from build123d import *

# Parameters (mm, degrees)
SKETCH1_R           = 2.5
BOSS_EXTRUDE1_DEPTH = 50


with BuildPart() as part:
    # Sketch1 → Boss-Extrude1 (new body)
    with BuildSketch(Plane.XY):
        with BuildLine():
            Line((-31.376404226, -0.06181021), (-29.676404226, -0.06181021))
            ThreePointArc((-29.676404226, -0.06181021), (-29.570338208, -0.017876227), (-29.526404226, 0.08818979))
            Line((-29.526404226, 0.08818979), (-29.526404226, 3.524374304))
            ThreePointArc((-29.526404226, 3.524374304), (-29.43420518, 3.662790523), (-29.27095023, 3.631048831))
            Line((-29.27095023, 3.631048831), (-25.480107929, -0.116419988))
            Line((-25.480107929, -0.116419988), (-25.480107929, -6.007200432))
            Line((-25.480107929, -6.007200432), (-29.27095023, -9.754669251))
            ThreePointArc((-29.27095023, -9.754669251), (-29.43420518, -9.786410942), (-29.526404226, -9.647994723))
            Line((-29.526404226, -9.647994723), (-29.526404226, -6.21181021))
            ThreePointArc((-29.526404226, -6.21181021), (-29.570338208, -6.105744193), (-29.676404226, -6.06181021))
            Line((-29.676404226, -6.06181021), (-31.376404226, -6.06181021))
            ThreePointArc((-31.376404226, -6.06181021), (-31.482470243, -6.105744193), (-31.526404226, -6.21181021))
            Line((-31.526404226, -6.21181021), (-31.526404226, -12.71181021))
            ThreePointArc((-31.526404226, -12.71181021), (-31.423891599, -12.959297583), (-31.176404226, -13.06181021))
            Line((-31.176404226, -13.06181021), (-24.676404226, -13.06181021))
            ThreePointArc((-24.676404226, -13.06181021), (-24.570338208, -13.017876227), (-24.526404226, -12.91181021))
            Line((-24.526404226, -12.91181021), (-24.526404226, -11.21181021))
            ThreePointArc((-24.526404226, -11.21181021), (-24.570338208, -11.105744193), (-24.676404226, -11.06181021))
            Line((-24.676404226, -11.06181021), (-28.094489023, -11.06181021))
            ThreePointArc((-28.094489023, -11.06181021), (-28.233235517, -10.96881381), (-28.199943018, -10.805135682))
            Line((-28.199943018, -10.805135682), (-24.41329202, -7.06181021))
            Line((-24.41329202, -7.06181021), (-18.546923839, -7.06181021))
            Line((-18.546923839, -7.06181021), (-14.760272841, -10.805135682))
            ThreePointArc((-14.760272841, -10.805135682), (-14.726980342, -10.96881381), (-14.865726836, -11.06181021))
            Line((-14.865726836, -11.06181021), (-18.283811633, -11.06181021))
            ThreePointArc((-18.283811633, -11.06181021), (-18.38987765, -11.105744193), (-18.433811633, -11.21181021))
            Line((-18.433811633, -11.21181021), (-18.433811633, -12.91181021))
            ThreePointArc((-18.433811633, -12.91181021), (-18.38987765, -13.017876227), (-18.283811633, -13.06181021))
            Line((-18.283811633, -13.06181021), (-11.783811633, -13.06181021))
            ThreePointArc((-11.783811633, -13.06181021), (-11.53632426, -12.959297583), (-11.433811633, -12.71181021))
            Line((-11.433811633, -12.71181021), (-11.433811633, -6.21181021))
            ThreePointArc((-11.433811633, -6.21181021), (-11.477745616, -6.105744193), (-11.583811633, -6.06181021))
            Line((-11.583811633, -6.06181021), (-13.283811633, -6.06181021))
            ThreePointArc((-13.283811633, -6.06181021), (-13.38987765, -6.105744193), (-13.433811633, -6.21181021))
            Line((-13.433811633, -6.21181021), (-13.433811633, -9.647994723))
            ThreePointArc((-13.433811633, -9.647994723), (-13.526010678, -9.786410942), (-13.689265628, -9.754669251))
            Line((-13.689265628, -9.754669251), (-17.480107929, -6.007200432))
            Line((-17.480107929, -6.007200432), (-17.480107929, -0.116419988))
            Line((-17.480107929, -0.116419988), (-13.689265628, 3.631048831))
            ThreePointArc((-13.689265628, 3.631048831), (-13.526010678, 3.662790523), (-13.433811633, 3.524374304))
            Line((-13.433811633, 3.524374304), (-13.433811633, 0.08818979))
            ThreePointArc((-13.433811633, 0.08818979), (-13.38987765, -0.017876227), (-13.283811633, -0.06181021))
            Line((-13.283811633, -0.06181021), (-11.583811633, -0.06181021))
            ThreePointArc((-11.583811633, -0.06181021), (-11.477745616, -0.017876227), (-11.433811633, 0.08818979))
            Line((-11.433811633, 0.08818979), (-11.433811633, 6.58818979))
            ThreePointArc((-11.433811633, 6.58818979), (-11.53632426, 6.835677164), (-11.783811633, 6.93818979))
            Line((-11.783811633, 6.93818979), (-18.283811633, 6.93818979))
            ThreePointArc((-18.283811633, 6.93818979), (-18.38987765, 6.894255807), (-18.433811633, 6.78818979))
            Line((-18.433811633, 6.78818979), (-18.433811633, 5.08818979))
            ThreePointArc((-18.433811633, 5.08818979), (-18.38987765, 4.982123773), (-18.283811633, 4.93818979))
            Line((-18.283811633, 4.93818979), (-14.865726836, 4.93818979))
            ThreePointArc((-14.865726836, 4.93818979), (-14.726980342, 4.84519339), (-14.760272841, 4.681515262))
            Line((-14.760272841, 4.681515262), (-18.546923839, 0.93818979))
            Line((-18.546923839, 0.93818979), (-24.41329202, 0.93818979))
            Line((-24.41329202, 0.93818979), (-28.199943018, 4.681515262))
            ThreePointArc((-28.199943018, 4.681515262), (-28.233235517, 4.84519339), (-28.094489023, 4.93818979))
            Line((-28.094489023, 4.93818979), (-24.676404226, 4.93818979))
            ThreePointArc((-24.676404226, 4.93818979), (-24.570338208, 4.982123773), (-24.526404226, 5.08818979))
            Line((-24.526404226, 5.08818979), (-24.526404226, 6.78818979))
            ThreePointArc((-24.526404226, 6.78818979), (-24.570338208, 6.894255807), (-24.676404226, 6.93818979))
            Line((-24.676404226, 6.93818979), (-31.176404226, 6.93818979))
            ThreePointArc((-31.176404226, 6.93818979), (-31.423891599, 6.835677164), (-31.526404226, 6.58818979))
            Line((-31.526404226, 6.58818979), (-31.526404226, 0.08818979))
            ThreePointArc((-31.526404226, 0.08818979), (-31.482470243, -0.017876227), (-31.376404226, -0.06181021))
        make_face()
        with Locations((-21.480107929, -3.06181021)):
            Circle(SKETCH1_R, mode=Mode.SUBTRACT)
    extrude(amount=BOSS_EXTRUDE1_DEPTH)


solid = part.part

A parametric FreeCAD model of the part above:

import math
import FreeCAD as App
import Part
import Sketcher

V = App.Vector

doc = App.newDocument("Part")
body = doc.addObject("PartDesign::Body", "Body")

sketch1 = body.newObject("Sketcher::SketchObject", "Sketch")
sketch1.AttachmentSupport = (doc.getObject("XY_Plane"), [""])
sketch1.MapMode = "FlatFace"
sketch1.addGeometry(Part.LineSegment(V(-31.38, -0.06, 0), V(-29.68, -0.06, 0)), False)
sketch1.addGeometry(Part.ArcOfCircle(Part.Circle(V(-29.68, 0.09, 0), V(0, 0, 1), 0.15), math.radians(-90), math.radians(0)), False)
sketch1.addGeometry(Part.LineSegment(V(-29.53, 0.09, 0), V(-29.53, 3.52, 0)), False)
sketch1.addGeometry(Part.ArcOfCircle(Part.Circle(V(-29.38, 3.52, 0), V(0, 0, 1), 0.15), math.radians(45), math.radians(180)), False)
sketch1.addGeometry(Part.LineSegment(V(-29.27, 3.63, 0), V(-25.48, -0.12, 0)), False)
sketch1.addGeometry(Part.LineSegment(V(-25.48, -0.12, 0), V(-25.48, -6.01, 0)), False)
sketch1.addGeometry(Part.LineSegment(V(-25.48, -6.01, 0), V(-29.27, -9.75, 0)), False)
sketch1.addGeometry(Part.ArcOfCircle(Part.Circle(V(-29.38, -9.65, 0), V(0, 0, 1), 0.15), math.radians(-180), math.radians(-45)), False)
sketch1.addGeometry(Part.LineSegment(V(-29.53, -9.65, 0), V(-29.53, -6.21, 0)), False)
sketch1.addGeometry(Part.ArcOfCircle(Part.Circle(V(-29.68, -6.21, 0), V(0, 0, 1), 0.15), math.radians(0), math.radians(90)), False)
sketch1.addGeometry(Part.LineSegment(V(-29.68, -6.06, 0), V(-31.38, -6.06, 0)), False)
sketch1.addGeometry(Part.ArcOfCircle(Part.Circle(V(-31.38, -6.21, 0), V(0, 0, 1), 0.15), math.radians(90), math.radians(180)), False)
sketch1.addGeometry(Part.LineSegment(V(-31.53, -6.21, 0), V(-31.53, -12.71, 0)), False)
sketch1.addGeometry(Part.ArcOfCircle(Part.Circle(V(-31.18, -12.71, 0), V(0, 0, 1), 0.35), math.radians(-180), math.radians(-90)), False)
sketch1.addGeometry(Part.LineSegment(V(-31.18, -13.06, 0), V(-24.68, -13.06, 0)), False)
sketch1.addGeometry(Part.ArcOfCircle(Part.Circle(V(-24.68, -12.91, 0), V(0, 0, 1), 0.15), math.radians(-90), math.radians(0)), False)
sketch1.addGeometry(Part.LineSegment(V(-24.53, -12.91, 0), V(-24.53, -11.21, 0)), False)
sketch1.addGeometry(Part.ArcOfCircle(Part.Circle(V(-24.68, -11.21, 0), V(0, 0, 1), 0.15), math.radians(0), math.radians(90)), False)
sketch1.addGeometry(Part.LineSegment(V(-24.68, -11.06, 0), V(-28.09, -11.06, 0)), False)
sketch1.addGeometry(Part.ArcOfCircle(Part.Circle(V(-28.09, -10.91, 0), V(0, 0, 1), 0.15), math.radians(135), math.radians(270)), False)
sketch1.addGeometry(Part.LineSegment(V(-28.2, -10.81, 0), V(-24.41, -7.06, 0)), False)
sketch1.addGeometry(Part.LineSegment(V(-24.41, -7.06, 0), V(-18.55, -7.06, 0)), False)
sketch1.addGeometry(Part.LineSegment(V(-18.55, -7.06, 0), V(-14.76, -10.81, 0)), False)
sketch1.addGeometry(Part.ArcOfCircle(Part.Circle(V(-14.87, -10.91, 0), V(0, 0, 1), 0.15), math.radians(-90), math.radians(45)), False)
sketch1.addGeometry(Part.LineSegment(V(-14.87, -11.06, 0), V(-18.28, -11.06, 0)), False)
sketch1.addGeometry(Part.ArcOfCircle(Part.Circle(V(-18.28, -11.21, 0), V(0, 0, 1), 0.15), math.radians(90), math.radians(180)), False)
sketch1.addGeometry(Part.LineSegment(V(-18.43, -11.21, 0), V(-18.43, -12.91, 0)), False)
sketch1.addGeometry(Part.ArcOfCircle(Part.Circle(V(-18.28, -12.91, 0), V(0, 0, 1), 0.15), math.radians(-180), math.radians(-90)), False)
sketch1.addGeometry(Part.LineSegment(V(-18.28, -13.06, 0), V(-11.78, -13.06, 0)), False)
sketch1.addGeometry(Part.ArcOfCircle(Part.Circle(V(-11.78, -12.71, 0), V(0, 0, 1), 0.35), math.radians(-90), math.radians(0)), False)
sketch1.addGeometry(Part.LineSegment(V(-11.43, -12.71, 0), V(-11.43, -6.21, 0)), False)
sketch1.addGeometry(Part.ArcOfCircle(Part.Circle(V(-11.58, -6.21, 0), V(0, 0, 1), 0.15), math.radians(0), math.radians(90)), False)
sketch1.addGeometry(Part.LineSegment(V(-11.58, -6.06, 0), V(-13.28, -6.06, 0)), False)
sketch1.addGeometry(Part.ArcOfCircle(Part.Circle(V(-13.28, -6.21, 0), V(0, 0, 1), 0.15), math.radians(90), math.radians(180)), False)
sketch1.addGeometry(Part.LineSegment(V(-13.43, -6.21, 0), V(-13.43, -9.65, 0)), False)
sketch1.addGeometry(Part.ArcOfCircle(Part.Circle(V(-13.58, -9.65, 0), V(0, 0, 1), 0.15), math.radians(-135), math.radians(0)), False)
sketch1.addGeometry(Part.LineSegment(V(-13.69, -9.75, 0), V(-17.48, -6.01, 0)), False)
sketch1.addGeometry(Part.LineSegment(V(-17.48, -6.01, 0), V(-17.48, -0.12, 0)), False)
sketch1.addGeometry(Part.LineSegment(V(-17.48, -0.12, 0), V(-13.69, 3.63, 0)), False)
sketch1.addGeometry(Part.ArcOfCircle(Part.Circle(V(-13.58, 3.52, 0), V(0, 0, 1), 0.15), math.radians(0), math.radians(135)), False)
sketch1.addGeometry(Part.LineSegment(V(-13.43, 3.52, 0), V(-13.43, 0.09, 0)), False)
sketch1.addGeometry(Part.ArcOfCircle(Part.Circle(V(-13.28, 0.09, 0), V(0, 0, 1), 0.15), math.radians(-180), math.radians(-90)), False)
sketch1.addGeometry(Part.LineSegment(V(-13.28, -0.06, 0), V(-11.58, -0.06, 0)), False)
sketch1.addGeometry(Part.ArcOfCircle(Part.Circle(V(-11.58, 0.09, 0), V(0, 0, 1), 0.15), math.radians(-90), math.radians(0)), False)
sketch1.addGeometry(Part.LineSegment(V(-11.43, 0.09, 0), V(-11.43, 6.59, 0)), False)
sketch1.addGeometry(Part.ArcOfCircle(Part.Circle(V(-11.78, 6.59, 0), V(0, 0, 1), 0.35), math.radians(0), math.radians(90)), False)
sketch1.addGeometry(Part.LineSegment(V(-11.78, 6.94, 0), V(-18.28, 6.94, 0)), False)
sketch1.addGeometry(Part.ArcOfCircle(Part.Circle(V(-18.28, 6.79, 0), V(0, 0, 1), 0.15), math.radians(90), math.radians(180)), False)
sketch1.addGeometry(Part.LineSegment(V(-18.43, 6.79, 0), V(-18.43, 5.09, 0)), False)
sketch1.addGeometry(Part.ArcOfCircle(Part.Circle(V(-18.28, 5.09, 0), V(0, 0, 1), 0.15), math.radians(-180), math.radians(-90)), False)
sketch1.addGeometry(Part.LineSegment(V(-18.28, 4.94, 0), V(-14.87, 4.94, 0)), False)
sketch1.addGeometry(Part.ArcOfCircle(Part.Circle(V(-14.87, 4.79, 0), V(0, 0, 1), 0.15), math.radians(-45), math.radians(90)), False)
sketch1.addGeometry(Part.LineSegment(V(-14.76, 4.68, 0), V(-18.55, 0.94, 0)), False)
sketch1.addGeometry(Part.LineSegment(V(-18.55, 0.94, 0), V(-24.41, 0.94, 0)), False)
sketch1.addGeometry(Part.LineSegment(V(-24.41, 0.94, 0), V(-28.2, 4.68, 0)), False)
sketch1.addGeometry(Part.ArcOfCircle(Part.Circle(V(-28.09, 4.79, 0), V(0, 0, 1), 0.15), math.radians(90), math.radians(225)), False)
sketch1.addGeometry(Part.LineSegment(V(-28.09, 4.94, 0), V(-24.68, 4.94, 0)), False)
sketch1.addGeometry(Part.ArcOfCircle(Part.Circle(V(-24.68, 5.09, 0), V(0, 0, 1), 0.15), math.radians(-90), math.radians(0)), False)
sketch1.addGeometry(Part.LineSegment(V(-24.53, 5.09, 0), V(-24.53, 6.79, 0)), False)
sketch1.addGeometry(Part.ArcOfCircle(Part.Circle(V(-24.68, 6.79, 0), V(0, 0, 1), 0.15), math.radians(0), math.radians(90)), False)
sketch1.addGeometry(Part.LineSegment(V(-24.68, 6.94, 0), V(-31.18, 6.94, 0)), False)
sketch1.addGeometry(Part.ArcOfCircle(Part.Circle(V(-31.18, 6.59, 0), V(0, 0, 1), 0.35), math.radians(90), math.radians(180)), False)
sketch1.addGeometry(Part.LineSegment(V(-31.53, 6.59, 0), V(-31.53, 0.09, 0)), False)
sketch1.addGeometry(Part.ArcOfCircle(Part.Circle(V(-31.38, 0.09, 0), V(0, 0, 1), 0.15), math.radians(-180), math.radians(-90)), False)
sketch1.addGeometry(Part.Circle(V(-21.48, -3.06, 0), V(0, 0, 1), 2.5), False)
sketch1.addConstraint(Sketcher.Constraint("Tangent", 0, 2, 1, 1))
sketch1.addConstraint(Sketcher.Constraint("Tangent", 1, 2, 2, 1))
sketch1.addConstraint(Sketcher.Constraint("Tangent", 2, 2, 3, 2))
sketch1.addConstraint(Sketcher.Constraint("Tangent", 3, 1, 4, 1))
sketch1.addConstraint(Sketcher.Constraint("Coincident", 4, 2, 5, 1))
sketch1.addConstraint(Sketcher.Constraint("Coincident", 5, 2, 6, 1))
sketch1.addConstraint(Sketcher.Constraint("Tangent", 6, 2, 7, 2))
sketch1.addConstraint(Sketcher.Constraint("Tangent", 7, 1, 8, 1))
sketch1.addConstraint(Sketcher.Constraint("Tangent", 8, 2, 9, 1))
sketch1.addConstraint(Sketcher.Constraint("Tangent", 9, 2, 10, 1))
sketch1.addConstraint(Sketcher.Constraint("Tangent", 10, 2, 11, 1))
sketch1.addConstraint(Sketcher.Constraint("Tangent", 11, 2, 12, 1))
sketch1.addConstraint(Sketcher.Constraint("Tangent", 12, 2, 13, 1))
sketch1.addConstraint(Sketcher.Constraint("Tangent", 13, 2, 14, 1))
sketch1.addConstraint(Sketcher.Constraint("Tangent", 14, 2, 15, 1))
sketch1.addConstraint(Sketcher.Constraint("Tangent", 15, 2, 16, 1))
sketch1.addConstraint(Sketcher.Constraint("Tangent", 16, 2, 17, 1))
sketch1.addConstraint(Sketcher.Constraint("Tangent", 17, 2, 18, 1))
sketch1.addConstraint(Sketcher.Constraint("Tangent", 18, 2, 19, 2))
sketch1.addConstraint(Sketcher.Constraint("Tangent", 19, 1, 20, 1))
sketch1.addConstraint(Sketcher.Constraint("Coincident", 20, 2, 21, 1))
sketch1.addConstraint(Sketcher.Constraint("Coincident", 21, 2, 22, 1))
sketch1.addConstraint(Sketcher.Constraint("Tangent", 22, 2, 23, 2))
sketch1.addConstraint(Sketcher.Constraint("Tangent", 23, 1, 24, 1))
sketch1.addConstraint(Sketcher.Constraint("Tangent", 24, 2, 25, 1))
sketch1.addConstraint(Sketcher.Constraint("Tangent", 25, 2, 26, 1))
sketch1.addConstraint(Sketcher.Constraint("Tangent", 26, 2, 27, 1))
sketch1.addConstraint(Sketcher.Constraint("Tangent", 27, 2, 28, 1))
sketch1.addConstraint(Sketcher.Constraint("Tangent", 28, 2, 29, 1))
sketch1.addConstraint(Sketcher.Constraint("Tangent", 29, 2, 30, 1))
sketch1.addConstraint(Sketcher.Constraint("Tangent", 30, 2, 31, 1))
sketch1.addConstraint(Sketcher.Constraint("Tangent", 31, 2, 32, 1))
sketch1.addConstraint(Sketcher.Constraint("Tangent", 32, 2, 33, 1))
sketch1.addConstraint(Sketcher.Constraint("Tangent", 33, 2, 34, 1))
sketch1.addConstraint(Sketcher.Constraint("Tangent", 34, 2, 35, 2))
sketch1.addConstraint(Sketcher.Constraint("Tangent", 35, 1, 36, 1))
sketch1.addConstraint(Sketcher.Constraint("Coincident", 36, 2, 37, 1))
sketch1.addConstraint(Sketcher.Constraint("Coincident", 37, 2, 38, 1))
sketch1.addConstraint(Sketcher.Constraint("Tangent", 38, 2, 39, 2))
sketch1.addConstraint(Sketcher.Constraint("Tangent", 39, 1, 40, 1))
sketch1.addConstraint(Sketcher.Constraint("Tangent", 40, 2, 41, 1))
sketch1.addConstraint(Sketcher.Constraint("Tangent", 41, 2, 42, 1))
sketch1.addConstraint(Sketcher.Constraint("Tangent", 42, 2, 43, 1))
sketch1.addConstraint(Sketcher.Constraint("Tangent", 43, 2, 44, 1))
sketch1.addConstraint(Sketcher.Constraint("Tangent", 44, 2, 45, 1))
sketch1.addConstraint(Sketcher.Constraint("Tangent", 45, 2, 46, 1))
sketch1.addConstraint(Sketcher.Constraint("Tangent", 46, 2, 47, 1))
sketch1.addConstraint(Sketcher.Constraint("Tangent", 47, 2, 48, 1))
sketch1.addConstraint(Sketcher.Constraint("Tangent", 48, 2, 49, 1))
sketch1.addConstraint(Sketcher.Constraint("Tangent", 49, 2, 50, 1))
sketch1.addConstraint(Sketcher.Constraint("Tangent", 50, 2, 51, 2))
sketch1.addConstraint(Sketcher.Constraint("Tangent", 51, 1, 52, 1))
sketch1.addConstraint(Sketcher.Constraint("Coincident", 52, 2, 53, 1))
sketch1.addConstraint(Sketcher.Constraint("Coincident", 53, 2, 54, 1))
sketch1.addConstraint(Sketcher.Constraint("Tangent", 54, 2, 55, 2))
sketch1.addConstraint(Sketcher.Constraint("Tangent", 55, 1, 56, 1))
sketch1.addConstraint(Sketcher.Constraint("Tangent", 56, 2, 57, 1))
sketch1.addConstraint(Sketcher.Constraint("Tangent", 57, 2, 58, 1))
sketch1.addConstraint(Sketcher.Constraint("Tangent", 58, 2, 59, 1))
sketch1.addConstraint(Sketcher.Constraint("Tangent", 59, 2, 60, 1))
sketch1.addConstraint(Sketcher.Constraint("Tangent", 60, 2, 61, 1))
sketch1.addConstraint(Sketcher.Constraint("Tangent", 61, 2, 62, 1))
sketch1.addConstraint(Sketcher.Constraint("Tangent", 62, 2, 63, 1))
sketch1.addConstraint(Sketcher.Constraint("Tangent", 63, 2, 0, 1))
sketch1.addConstraint(Sketcher.Constraint("Horizontal", 0))
sketch1.addConstraint(Sketcher.Constraint("Vertical", 2))
sketch1.addConstraint(Sketcher.Constraint("Vertical", 5))
sketch1.addConstraint(Sketcher.Constraint("Vertical", 8))
sketch1.addConstraint(Sketcher.Constraint("Horizontal", 10))
sketch1.addConstraint(Sketcher.Constraint("Vertical", 12))
sketch1.addConstraint(Sketcher.Constraint("Horizontal", 14))
sketch1.addConstraint(Sketcher.Constraint("Vertical", 16))
sketch1.addConstraint(Sketcher.Constraint("Horizontal", 18))
sketch1.addConstraint(Sketcher.Constraint("Horizontal", 21))
sketch1.addConstraint(Sketcher.Constraint("Horizontal", 24))
sketch1.addConstraint(Sketcher.Constraint("Vertical", 26))
sketch1.addConstraint(Sketcher.Constraint("Horizontal", 28))
sketch1.addConstraint(Sketcher.Constraint("Vertical", 30))
sketch1.addConstraint(Sketcher.Constraint("Horizontal", 32))
sketch1.addConstraint(Sketcher.Constraint("Vertical", 34))
sketch1.addConstraint(Sketcher.Constraint("Vertical", 37))
sketch1.addConstraint(Sketcher.Constraint("Vertical", 40))
sketch1.addConstraint(Sketcher.Constraint("Horizontal", 42))
sketch1.addConstraint(Sketcher.Constraint("Vertical", 44))
sketch1.addConstraint(Sketcher.Constraint("Horizontal", 46))
sketch1.addConstraint(Sketcher.Constraint("Vertical", 48))
sketch1.addConstraint(Sketcher.Constraint("Horizontal", 50))
sketch1.addConstraint(Sketcher.Constraint("Horizontal", 53))
sketch1.addConstraint(Sketcher.Constraint("Horizontal", 56))
sketch1.addConstraint(Sketcher.Constraint("Vertical", 58))
sketch1.addConstraint(Sketcher.Constraint("Horizontal", 60))
sketch1.addConstraint(Sketcher.Constraint("Vertical", 62))
sketch1.addConstraint(Sketcher.Constraint("Equal", 1, 3))
sketch1.addConstraint(Sketcher.Constraint("Equal", 3, 7))
sketch1.addConstraint(Sketcher.Constraint("Equal", 7, 9))
sketch1.addConstraint(Sketcher.Constraint("Equal", 9, 11))
sketch1.addConstraint(Sketcher.Constraint("Equal", 11, 15))
sketch1.addConstraint(Sketcher.Constraint("Equal", 15, 17))
sketch1.addConstraint(Sketcher.Constraint("Equal", 17, 19))
sketch1.addConstraint(Sketcher.Constraint("Equal", 19, 23))
sketch1.addConstraint(Sketcher.Constraint("Equal", 23, 25))
sketch1.addConstraint(Sketcher.Constraint("Equal", 25, 27))
sketch1.addConstraint(Sketcher.Constraint("Equal", 13, 29))
sketch1.addConstraint(Sketcher.Constraint("Equal", 27, 31))
sketch1.addConstraint(Sketcher.Constraint("Equal", 31, 33))
sketch1.addConstraint(Sketcher.Constraint("Equal", 33, 35))
sketch1.addConstraint(Sketcher.Constraint("Equal", 35, 39))
sketch1.addConstraint(Sketcher.Constraint("Equal", 39, 41))
sketch1.addConstraint(Sketcher.Constraint("Equal", 41, 43))
sketch1.addConstraint(Sketcher.Constraint("Equal", 29, 45))
sketch1.addConstraint(Sketcher.Constraint("Equal", 43, 47))
sketch1.addConstraint(Sketcher.Constraint("Equal", 47, 49))
sketch1.addConstraint(Sketcher.Constraint("Equal", 49, 51))
sketch1.addConstraint(Sketcher.Constraint("Equal", 51, 55))
sketch1.addConstraint(Sketcher.Constraint("Equal", 55, 57))
sketch1.addConstraint(Sketcher.Constraint("Equal", 57, 59))
sketch1.addConstraint(Sketcher.Constraint("Equal", 45, 61))
sketch1.addConstraint(Sketcher.Constraint("Equal", 59, 63))
sketch1.addConstraint(Sketcher.Constraint("Parallel", 6, 20))
sketch1.addConstraint(Sketcher.Constraint("Parallel", 4, 22))
sketch1.addConstraint(Sketcher.Constraint("Parallel", 22, 36))
sketch1.addConstraint(Sketcher.Constraint("Parallel", 20, 38))
sketch1.addConstraint(Sketcher.Constraint("Parallel", 38, 52))
sketch1.addConstraint(Sketcher.Constraint("Parallel", 36, 54))
sketch1.addConstraint(Sketcher.Constraint("Horizontal", 19, 3, 23, 3))
sketch1.addConstraint(Sketcher.Constraint("Horizontal", 15, 3, 27, 3))
sketch1.addConstraint(Sketcher.Constraint("Horizontal", 11, 3, 31, 3))
sketch1.addConstraint(Sketcher.Constraint("Horizontal", 7, 3, 35, 3))
sketch1.addConstraint(Sketcher.Constraint("Horizontal", 3, 3, 39, 3))
sketch1.addConstraint(Sketcher.Constraint("Horizontal", 1, 3, 41, 3))
sketch1.addConstraint(Sketcher.Constraint("Horizontal", 51, 3, 55, 3))
sketch1.addConstraint(Sketcher.Constraint("Horizontal", 47, 3, 59, 3))
sketch1.addConstraint(Sketcher.Constraint("Horizontal", 19, 1, 22, 2))
sketch1.addConstraint(Sketcher.Constraint("Horizontal", 5, 2, 36, 2))
sketch1.addConstraint(Sketcher.Constraint("Horizontal", 4, 2, 37, 2))
sketch1.addConstraint(Sketcher.Constraint("Vertical", 3, 3, 7, 3))
sketch1.addConstraint(Sketcher.Constraint("Vertical", 31, 3, 43, 3))
sketch1.addConstraint(Sketcher.Constraint("Vertical", 27, 3, 47, 3))
sketch1.addConstraint(Sketcher.Constraint("Vertical", 23, 3, 51, 3))
sketch1.addConstraint(Sketcher.Constraint("Vertical", 19, 3, 55, 3))
sketch1.addConstraint(Sketcher.Constraint("Vertical", 17, 3, 57, 3))
sketch1.addConstraint(Sketcher.Constraint("Vertical", 13, 3, 61, 3))
sketch1.addConstraint(Sketcher.Constraint("Vertical", 21, 2, 52, 2))
sketch1.addConstraint(Sketcher.Constraint("Equal", 18, 24))
sketch1.addConstraint(Sketcher.Constraint("Equal", 14, 28))
sketch1.addConstraint(Sketcher.Constraint("Equal", 10, 32))
sketch1.addConstraint(Sketcher.Constraint("Equal", 2, 8))
sketch1.addConstraint(Sketcher.Constraint("Equal", 60, 12))
sketch1.addConstraint(Sketcher.Constraint("Equal", 42, 16))
sketch1.addConstraint(Sketcher.Constraint("Equal", 30, 44))
sketch1.addConstraint(Sketcher.Constraint("Equal", 26, 48))
sketch1.addConstraint(Sketcher.Constraint("Diameter", 64, 5.0))
sketch1.addConstraint(Sketcher.Constraint("Radius", 1, 0.15))
sketch1.addConstraint(Sketcher.Constraint("Radius", 13, 0.35))
sketch1.addConstraint(Sketcher.Constraint("DistanceX", 0, 1, 0, 2, 1.7))
sketch1.addConstraint(Sketcher.Constraint("DistanceX", 14, 1, 14, 2, 6.5))
sketch1.addConstraint(Sketcher.Constraint("DistanceX", 21, 1, 21, 2, 5.866368))
sketch1.addConstraint(Sketcher.Constraint("DistanceY", 5, 2, 5, 1, 5.89078))
sketch1.addConstraint(Sketcher.Constraint("DistanceY", 5, 2, -1, 1, 6.0072))
sketch1.addConstraint(Sketcher.Constraint("Distance", 4, 5.330479))
sketch1.addConstraint(Sketcher.Constraint("DistanceX", 18, 2, 18, 1, 3.418085))
sketch1.addConstraint(Sketcher.Constraint("DistanceY", 2, 1, 2, 2, 3.436185))
sketch1.addConstraint(Sketcher.Constraint("DistanceY", -1, 1, 1, 3, 0.08819))
sketch1.addConstraint(Sketcher.Constraint("DistanceX", 19, 3, -1, 1, 28.094489))
sketch1.addConstraint(Sketcher.Constraint("DistanceX", 25, 3, -1, 1, 18.283812))
sketch1.addConstraint(Sketcher.Constraint("DistanceY", 64, 3, -1, 1, 3.06181))
sketch1.addConstraint(Sketcher.Constraint("DistanceX", 64, 3, -1, 1, 21.480108))
pad1 = body.newObject("PartDesign::Pad", "Pad")
pad1.Profile = sketch1
pad1.Length = 50

doc.recompute()
